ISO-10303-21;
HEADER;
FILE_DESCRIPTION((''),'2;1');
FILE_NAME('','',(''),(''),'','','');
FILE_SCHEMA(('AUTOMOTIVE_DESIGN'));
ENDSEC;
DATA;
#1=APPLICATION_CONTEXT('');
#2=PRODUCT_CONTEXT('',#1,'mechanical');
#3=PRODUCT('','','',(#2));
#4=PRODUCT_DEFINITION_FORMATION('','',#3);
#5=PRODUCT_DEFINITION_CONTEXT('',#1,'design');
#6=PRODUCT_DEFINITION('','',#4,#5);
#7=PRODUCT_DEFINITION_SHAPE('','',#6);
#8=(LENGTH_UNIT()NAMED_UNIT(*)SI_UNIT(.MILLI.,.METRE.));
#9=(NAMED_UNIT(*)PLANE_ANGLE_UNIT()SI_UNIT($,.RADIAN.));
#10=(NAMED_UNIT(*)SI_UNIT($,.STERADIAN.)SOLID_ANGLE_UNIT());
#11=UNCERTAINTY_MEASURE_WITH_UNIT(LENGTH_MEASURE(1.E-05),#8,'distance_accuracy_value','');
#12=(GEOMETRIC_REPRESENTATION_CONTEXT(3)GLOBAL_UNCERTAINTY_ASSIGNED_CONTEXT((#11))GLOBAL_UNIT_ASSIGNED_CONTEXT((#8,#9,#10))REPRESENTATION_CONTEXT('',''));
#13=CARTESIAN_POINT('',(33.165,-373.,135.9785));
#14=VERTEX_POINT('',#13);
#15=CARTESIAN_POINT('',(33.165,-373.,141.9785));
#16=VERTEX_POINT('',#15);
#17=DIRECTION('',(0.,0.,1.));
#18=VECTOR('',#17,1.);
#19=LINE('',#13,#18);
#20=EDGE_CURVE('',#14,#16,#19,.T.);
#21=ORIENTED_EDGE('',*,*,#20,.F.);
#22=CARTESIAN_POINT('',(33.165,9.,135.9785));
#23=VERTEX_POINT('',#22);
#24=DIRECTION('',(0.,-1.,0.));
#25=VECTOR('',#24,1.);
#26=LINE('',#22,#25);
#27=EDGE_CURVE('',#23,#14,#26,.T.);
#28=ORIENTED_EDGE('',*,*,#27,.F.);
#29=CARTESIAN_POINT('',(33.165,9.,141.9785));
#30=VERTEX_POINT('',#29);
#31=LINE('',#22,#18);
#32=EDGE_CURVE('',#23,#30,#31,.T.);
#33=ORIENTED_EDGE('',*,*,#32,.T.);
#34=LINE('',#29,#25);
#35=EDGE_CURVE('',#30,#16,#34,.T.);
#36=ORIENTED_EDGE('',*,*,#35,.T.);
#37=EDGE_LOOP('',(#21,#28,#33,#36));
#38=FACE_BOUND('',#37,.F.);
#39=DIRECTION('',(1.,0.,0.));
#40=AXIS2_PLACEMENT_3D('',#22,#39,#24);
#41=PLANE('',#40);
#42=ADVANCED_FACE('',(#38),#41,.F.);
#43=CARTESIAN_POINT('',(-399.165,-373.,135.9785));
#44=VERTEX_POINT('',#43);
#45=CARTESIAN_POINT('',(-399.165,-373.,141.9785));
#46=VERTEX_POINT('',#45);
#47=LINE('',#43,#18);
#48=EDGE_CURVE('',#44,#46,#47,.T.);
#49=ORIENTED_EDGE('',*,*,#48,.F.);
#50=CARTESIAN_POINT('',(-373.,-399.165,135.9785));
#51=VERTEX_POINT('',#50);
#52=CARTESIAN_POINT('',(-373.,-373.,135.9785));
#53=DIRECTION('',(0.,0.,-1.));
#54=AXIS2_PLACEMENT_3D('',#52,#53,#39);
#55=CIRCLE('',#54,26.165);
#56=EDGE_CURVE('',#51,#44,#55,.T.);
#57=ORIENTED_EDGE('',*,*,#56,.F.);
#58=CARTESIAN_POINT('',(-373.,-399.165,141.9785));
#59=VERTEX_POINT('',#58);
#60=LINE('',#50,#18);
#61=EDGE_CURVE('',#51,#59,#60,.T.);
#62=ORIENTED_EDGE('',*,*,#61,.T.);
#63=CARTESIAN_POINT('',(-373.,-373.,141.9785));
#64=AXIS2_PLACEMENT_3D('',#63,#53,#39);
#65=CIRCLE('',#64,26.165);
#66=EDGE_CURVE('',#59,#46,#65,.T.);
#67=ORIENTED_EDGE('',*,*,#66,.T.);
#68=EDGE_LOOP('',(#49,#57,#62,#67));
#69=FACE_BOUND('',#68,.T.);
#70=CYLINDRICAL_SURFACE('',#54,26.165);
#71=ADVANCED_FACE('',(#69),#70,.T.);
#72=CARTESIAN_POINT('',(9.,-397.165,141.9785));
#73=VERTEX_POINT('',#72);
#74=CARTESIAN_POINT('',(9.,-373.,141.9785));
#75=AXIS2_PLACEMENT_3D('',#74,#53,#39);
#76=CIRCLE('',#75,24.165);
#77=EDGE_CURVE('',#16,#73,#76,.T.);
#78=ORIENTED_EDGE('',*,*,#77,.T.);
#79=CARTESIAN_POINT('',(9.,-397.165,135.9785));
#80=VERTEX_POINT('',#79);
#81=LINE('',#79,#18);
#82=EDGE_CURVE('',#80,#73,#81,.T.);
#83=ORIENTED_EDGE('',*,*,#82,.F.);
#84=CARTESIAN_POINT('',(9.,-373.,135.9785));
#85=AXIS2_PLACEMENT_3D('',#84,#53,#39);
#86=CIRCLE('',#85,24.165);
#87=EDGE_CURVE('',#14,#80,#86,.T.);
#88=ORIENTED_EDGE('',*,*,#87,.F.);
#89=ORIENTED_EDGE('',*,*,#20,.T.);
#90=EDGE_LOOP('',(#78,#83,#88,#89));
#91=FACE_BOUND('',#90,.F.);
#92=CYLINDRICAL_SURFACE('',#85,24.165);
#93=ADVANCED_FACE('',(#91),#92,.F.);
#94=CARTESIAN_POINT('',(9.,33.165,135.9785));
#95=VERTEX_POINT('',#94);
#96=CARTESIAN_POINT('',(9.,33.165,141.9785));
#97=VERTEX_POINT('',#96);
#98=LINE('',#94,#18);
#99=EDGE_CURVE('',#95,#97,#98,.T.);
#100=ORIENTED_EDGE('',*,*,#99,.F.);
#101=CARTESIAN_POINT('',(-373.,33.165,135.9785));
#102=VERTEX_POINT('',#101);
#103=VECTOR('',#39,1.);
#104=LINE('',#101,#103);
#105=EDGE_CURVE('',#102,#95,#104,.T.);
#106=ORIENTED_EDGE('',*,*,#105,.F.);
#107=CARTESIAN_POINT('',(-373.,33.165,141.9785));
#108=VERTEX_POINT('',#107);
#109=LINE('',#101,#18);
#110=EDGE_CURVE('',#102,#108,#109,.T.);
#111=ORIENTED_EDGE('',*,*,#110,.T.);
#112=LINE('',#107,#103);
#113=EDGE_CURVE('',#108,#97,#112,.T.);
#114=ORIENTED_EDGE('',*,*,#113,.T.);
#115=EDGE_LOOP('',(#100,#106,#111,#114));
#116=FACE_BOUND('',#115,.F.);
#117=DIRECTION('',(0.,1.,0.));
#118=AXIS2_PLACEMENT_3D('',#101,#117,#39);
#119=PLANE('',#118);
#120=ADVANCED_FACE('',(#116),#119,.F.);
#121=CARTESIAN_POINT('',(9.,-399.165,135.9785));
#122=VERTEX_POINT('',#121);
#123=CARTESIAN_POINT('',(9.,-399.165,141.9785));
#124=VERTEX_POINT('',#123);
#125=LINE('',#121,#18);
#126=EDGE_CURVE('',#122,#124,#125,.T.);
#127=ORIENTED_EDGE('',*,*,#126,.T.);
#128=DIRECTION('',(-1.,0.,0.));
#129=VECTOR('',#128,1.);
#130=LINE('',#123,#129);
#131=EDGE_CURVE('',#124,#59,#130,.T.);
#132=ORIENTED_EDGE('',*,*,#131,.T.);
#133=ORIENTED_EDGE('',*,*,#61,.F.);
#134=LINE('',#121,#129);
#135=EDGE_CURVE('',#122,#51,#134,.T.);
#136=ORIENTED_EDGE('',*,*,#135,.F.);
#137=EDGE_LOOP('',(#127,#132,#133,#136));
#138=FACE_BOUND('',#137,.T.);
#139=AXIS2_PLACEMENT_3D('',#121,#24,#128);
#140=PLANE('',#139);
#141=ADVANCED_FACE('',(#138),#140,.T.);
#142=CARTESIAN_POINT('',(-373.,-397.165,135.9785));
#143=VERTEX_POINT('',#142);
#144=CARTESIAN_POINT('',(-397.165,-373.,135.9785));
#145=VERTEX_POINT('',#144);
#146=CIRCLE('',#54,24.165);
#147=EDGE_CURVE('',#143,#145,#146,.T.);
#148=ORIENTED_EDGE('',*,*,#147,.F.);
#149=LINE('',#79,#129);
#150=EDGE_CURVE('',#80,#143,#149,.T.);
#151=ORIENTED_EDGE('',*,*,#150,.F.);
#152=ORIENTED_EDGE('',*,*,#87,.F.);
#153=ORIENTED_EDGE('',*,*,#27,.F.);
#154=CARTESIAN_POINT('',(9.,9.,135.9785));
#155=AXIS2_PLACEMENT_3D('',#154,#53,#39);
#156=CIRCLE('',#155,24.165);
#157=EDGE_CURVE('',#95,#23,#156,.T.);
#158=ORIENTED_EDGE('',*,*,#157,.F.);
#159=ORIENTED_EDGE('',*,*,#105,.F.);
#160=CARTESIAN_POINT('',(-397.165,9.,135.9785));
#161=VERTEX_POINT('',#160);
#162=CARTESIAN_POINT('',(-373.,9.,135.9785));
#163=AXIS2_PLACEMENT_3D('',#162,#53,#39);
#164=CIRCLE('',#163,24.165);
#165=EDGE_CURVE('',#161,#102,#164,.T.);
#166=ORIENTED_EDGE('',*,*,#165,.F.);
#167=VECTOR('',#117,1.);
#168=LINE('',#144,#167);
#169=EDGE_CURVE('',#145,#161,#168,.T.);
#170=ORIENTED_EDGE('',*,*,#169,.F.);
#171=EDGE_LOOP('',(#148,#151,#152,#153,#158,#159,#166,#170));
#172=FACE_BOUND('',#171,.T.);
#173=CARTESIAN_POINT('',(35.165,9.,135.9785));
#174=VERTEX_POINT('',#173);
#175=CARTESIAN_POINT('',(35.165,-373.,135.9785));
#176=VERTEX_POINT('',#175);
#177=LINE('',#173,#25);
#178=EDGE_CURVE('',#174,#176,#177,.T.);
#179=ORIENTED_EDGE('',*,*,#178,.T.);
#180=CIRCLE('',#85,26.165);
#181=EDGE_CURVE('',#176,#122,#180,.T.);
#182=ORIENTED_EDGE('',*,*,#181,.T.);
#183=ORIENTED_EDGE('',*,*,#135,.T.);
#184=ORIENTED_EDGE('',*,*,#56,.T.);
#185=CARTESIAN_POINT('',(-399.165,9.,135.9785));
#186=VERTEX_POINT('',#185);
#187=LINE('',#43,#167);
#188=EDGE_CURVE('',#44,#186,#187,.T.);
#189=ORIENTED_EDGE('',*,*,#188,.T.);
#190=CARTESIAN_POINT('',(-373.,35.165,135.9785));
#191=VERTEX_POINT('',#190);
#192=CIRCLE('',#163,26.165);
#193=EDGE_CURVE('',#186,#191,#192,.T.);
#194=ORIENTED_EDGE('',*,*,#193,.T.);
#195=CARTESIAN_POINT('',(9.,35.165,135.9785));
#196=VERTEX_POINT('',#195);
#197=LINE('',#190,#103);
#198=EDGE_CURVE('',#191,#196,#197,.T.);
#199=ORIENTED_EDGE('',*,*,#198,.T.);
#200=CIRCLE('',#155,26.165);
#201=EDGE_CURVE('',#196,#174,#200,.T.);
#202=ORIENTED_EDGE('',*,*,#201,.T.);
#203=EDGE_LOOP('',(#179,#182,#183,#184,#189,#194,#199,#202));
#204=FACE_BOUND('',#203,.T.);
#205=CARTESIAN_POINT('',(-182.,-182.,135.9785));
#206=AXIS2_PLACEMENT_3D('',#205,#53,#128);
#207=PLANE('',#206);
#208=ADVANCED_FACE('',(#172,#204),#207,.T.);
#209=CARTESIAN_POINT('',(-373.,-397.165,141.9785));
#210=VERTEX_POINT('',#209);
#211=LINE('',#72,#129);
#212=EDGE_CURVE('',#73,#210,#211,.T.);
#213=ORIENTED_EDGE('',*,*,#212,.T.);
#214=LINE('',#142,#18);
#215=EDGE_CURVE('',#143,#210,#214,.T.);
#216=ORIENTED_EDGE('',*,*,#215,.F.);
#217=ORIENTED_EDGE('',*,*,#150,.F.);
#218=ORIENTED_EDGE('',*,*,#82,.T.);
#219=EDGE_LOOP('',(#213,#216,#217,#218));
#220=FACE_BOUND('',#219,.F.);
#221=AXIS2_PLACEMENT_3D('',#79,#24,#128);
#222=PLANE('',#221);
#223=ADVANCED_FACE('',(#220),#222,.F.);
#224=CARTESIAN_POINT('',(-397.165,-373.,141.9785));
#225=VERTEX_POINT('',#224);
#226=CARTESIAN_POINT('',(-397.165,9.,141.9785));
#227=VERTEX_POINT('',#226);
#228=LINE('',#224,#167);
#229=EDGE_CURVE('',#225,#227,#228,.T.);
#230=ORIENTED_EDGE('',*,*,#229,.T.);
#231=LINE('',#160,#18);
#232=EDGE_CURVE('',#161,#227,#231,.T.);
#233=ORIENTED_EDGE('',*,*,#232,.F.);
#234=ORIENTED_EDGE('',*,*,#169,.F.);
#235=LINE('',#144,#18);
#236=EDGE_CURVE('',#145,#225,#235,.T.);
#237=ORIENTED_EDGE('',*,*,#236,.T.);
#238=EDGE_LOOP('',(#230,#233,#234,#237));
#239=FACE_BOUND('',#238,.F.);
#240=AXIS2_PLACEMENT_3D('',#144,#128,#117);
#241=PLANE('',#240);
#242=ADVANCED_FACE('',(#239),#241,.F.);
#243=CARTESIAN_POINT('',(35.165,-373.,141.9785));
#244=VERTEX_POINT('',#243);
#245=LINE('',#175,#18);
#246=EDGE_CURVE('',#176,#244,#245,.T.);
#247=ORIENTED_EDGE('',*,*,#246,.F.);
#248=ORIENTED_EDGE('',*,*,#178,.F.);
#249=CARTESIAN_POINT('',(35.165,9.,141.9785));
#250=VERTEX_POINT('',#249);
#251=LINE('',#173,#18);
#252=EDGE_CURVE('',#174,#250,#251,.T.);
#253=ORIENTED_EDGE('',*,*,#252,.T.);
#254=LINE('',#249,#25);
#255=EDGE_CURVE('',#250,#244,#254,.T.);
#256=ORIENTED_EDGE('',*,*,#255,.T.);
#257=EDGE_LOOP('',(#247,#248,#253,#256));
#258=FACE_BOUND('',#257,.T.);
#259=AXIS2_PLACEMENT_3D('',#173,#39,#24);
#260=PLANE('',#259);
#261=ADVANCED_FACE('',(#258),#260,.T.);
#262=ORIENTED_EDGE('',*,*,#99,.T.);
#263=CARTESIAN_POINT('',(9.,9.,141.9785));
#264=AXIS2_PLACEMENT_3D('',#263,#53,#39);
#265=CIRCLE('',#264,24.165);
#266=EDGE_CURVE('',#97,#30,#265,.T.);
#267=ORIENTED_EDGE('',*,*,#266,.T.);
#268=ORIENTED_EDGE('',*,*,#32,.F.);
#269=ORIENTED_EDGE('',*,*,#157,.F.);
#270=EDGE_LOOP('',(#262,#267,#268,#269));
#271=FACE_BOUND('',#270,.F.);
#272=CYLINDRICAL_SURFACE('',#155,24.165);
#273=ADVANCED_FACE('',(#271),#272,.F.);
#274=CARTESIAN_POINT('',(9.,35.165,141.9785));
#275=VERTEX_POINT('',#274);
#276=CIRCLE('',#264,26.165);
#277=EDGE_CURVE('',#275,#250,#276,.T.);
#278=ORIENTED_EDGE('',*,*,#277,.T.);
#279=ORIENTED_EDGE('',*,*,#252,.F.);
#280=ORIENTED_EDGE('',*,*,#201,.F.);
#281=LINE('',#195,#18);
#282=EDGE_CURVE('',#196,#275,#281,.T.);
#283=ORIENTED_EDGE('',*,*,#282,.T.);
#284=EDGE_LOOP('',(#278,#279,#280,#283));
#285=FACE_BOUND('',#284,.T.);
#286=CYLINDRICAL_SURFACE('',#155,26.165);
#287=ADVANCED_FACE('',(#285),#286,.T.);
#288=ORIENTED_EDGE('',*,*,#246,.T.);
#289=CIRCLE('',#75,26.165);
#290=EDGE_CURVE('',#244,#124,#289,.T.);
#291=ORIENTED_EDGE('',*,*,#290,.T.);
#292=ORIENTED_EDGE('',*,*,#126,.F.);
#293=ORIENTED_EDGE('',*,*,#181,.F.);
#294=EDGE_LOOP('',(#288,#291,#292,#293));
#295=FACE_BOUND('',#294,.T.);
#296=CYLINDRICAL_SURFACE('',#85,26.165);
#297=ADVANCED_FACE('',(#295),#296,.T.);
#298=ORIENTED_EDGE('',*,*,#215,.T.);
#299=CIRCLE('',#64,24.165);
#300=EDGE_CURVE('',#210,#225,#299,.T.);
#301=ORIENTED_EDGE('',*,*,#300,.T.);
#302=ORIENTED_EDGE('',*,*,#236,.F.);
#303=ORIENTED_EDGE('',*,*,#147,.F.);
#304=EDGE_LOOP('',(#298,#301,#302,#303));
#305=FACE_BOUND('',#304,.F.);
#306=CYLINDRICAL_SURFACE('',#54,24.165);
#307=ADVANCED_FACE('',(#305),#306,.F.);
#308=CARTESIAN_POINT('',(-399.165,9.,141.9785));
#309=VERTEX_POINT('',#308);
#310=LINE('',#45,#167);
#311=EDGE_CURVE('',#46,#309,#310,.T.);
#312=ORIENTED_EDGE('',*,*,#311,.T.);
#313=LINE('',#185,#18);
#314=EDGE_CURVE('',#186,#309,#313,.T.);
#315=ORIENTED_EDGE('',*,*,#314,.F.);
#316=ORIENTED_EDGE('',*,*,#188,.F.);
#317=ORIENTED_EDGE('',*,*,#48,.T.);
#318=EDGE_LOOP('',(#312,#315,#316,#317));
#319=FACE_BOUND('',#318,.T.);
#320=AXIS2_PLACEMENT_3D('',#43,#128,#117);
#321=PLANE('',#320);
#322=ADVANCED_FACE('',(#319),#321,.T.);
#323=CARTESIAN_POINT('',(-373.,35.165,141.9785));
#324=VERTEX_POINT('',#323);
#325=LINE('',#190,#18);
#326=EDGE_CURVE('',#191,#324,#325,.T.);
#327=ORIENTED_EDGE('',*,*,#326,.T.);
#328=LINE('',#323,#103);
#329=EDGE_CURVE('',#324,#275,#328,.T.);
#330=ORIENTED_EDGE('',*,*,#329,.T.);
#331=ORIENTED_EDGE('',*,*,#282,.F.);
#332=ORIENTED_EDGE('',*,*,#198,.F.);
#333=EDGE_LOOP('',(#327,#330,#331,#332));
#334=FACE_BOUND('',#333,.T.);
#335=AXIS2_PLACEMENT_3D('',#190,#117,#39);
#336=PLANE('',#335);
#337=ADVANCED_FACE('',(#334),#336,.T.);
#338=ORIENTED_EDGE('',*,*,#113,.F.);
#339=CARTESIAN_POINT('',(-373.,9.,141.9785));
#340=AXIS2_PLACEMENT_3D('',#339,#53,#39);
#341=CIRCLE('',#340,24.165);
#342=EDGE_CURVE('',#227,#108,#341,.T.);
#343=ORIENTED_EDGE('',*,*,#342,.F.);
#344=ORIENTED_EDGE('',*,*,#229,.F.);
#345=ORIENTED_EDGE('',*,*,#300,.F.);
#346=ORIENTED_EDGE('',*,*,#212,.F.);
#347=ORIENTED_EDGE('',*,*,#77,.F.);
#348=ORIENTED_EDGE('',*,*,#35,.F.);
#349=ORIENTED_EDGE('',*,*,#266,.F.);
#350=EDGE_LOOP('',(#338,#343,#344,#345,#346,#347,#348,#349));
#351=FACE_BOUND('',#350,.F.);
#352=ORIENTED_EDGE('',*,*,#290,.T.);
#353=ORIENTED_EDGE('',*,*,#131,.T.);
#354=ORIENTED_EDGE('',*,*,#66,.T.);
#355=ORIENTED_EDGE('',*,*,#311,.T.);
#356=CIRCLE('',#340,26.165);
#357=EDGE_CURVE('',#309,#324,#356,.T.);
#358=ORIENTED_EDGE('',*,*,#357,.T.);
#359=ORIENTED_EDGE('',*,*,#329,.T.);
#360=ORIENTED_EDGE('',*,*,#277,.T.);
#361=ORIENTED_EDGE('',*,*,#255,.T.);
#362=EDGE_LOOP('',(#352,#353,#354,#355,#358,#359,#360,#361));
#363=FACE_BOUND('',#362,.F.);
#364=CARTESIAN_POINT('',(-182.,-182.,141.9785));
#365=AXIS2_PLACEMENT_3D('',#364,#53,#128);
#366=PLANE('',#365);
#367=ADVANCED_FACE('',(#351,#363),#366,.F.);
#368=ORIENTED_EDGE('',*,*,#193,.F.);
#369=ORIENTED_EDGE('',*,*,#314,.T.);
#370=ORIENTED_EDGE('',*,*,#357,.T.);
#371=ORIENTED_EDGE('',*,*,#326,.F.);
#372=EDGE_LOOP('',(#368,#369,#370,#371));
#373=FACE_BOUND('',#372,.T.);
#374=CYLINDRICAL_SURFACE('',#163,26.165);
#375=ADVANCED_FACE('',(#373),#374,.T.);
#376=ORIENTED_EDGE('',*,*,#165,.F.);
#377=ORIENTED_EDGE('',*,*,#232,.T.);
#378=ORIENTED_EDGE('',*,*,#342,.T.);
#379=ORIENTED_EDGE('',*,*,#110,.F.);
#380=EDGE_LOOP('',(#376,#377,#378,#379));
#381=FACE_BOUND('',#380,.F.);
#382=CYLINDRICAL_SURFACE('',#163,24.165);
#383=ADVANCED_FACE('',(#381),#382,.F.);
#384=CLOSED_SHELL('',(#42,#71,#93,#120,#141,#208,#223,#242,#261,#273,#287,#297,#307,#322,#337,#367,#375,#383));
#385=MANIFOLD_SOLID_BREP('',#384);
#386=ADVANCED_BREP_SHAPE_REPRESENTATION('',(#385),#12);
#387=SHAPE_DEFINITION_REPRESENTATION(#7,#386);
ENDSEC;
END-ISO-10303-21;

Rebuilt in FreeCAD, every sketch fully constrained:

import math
import FreeCAD as App
import Part
import Sketcher
from FreeCAD import Vector
Q = App.Units.Quantity

doc = App.newDocument("Part")
params = doc.addObject("Spreadsheet::Sheet", "Params")
for row, (alias, value) in enumerate([
    ("sketch1_width", "382 mm"),
    ("pad1_length", "6 mm"),
], start=1):
    params.set(f"A{row}", alias)
    params.set(f"B{row}", "=" + value)
    params.setAlias(f"B{row}", alias)

body = doc.addObject("PartDesign::Body", "Body")

sketch1 = body.newObject("Sketcher::SketchObject", "Sketch")
sketch1.AttachmentSupport = (doc.getObject("XY_Plane"), [""])
sketch1.MapMode = "FlatFace"
sketch1.AttachmentOffset = App.Placement(Vector(0, 0, 135.9785), App.Rotation())
sketch1.addGeometry([
    Part.LineSegment(Vector(35, -373, 0), Vector(35, 9, 0)),
    Part.ArcOfCircle(Part.Circle(Vector(9, 9, 0), Vector(0, 0, 1), 26), math.radians(0), math.radians(90)),
    Part.LineSegment(Vector(9, 35, 0), Vector(-373, 35, 0)),
    Part.ArcOfCircle(Part.Circle(Vector(-373, 9, 0), Vector(0, 0, 1), 26), math.radians(90), math.radians(180)),
    Part.LineSegment(Vector(-399, 9, 0), Vector(-399, -373, 0)),
    Part.ArcOfCircle(Part.Circle(Vector(-373, -373, 0), Vector(0, 0, 1), 26), math.radians(180), math.radians(270)),
    Part.LineSegment(Vector(-373, -399, 0), Vector(9, -399, 0)),
    Part.ArcOfCircle(Part.Circle(Vector(9, -373, 0), Vector(0, 0, 1), 26), math.radians(-90), math.radians(0)),
    Part.ArcOfCircle(Part.Circle(Vector(9, 9, 0), Vector(0, 0, 1), 24), math.radians(0), math.radians(90)),
    Part.LineSegment(Vector(33, 9, 0), Vector(33, -373, 0)),
    Part.ArcOfCircle(Part.Circle(Vector(9, -373, 0), Vector(0, 0, 1), 24), math.radians(-90), math.radians(0)),
    Part.LineSegment(Vector(9, -397, 0), Vector(-373, -397, 0)),
    Part.ArcOfCircle(Part.Circle(Vector(-373, -373, 0), Vector(0, 0, 1), 24), math.radians(180), math.radians(270)),
    Part.LineSegment(Vector(-397, -373, 0), Vector(-397, 9, 0)),
    Part.ArcOfCircle(Part.Circle(Vector(-373, 9, 0), Vector(0, 0, 1), 24), math.radians(90), math.radians(180)),
    Part.LineSegment(Vector(-373, 33, 0), Vector(9, 33, 0)),
], False)
sketch1.addConstraint([
    Sketcher.Constraint("Tangent", 0, 2, 1, 1),
    Sketcher.Constraint("Tangent", 1, 2, 2, 1),
    Sketcher.Constraint("Tangent", 2, 2, 3, 1),
    Sketcher.Constraint("Tangent", 3, 2, 4, 1),
    Sketcher.Constraint("Tangent", 4, 2, 5, 1),
    Sketcher.Constraint("Tangent", 5, 2, 6, 1),
    Sketcher.Constraint("Tangent", 6, 2, 7, 1),
    Sketcher.Constraint("Tangent", 7, 2, 0, 1),
    Sketcher.Constraint("Tangent", 8, 1, 9, 1),
    Sketcher.Constraint("Tangent", 9, 2, 10, 2),
    Sketcher.Constraint("Tangent", 10, 1, 11, 1),
    Sketcher.Constraint("Tangent", 11, 2, 12, 2),
    Sketcher.Constraint("Tangent", 12, 1, 13, 1),
    Sketcher.Constraint("Tangent", 13, 2, 14, 2),
    Sketcher.Constraint("Tangent", 14, 1, 15, 1),
    Sketcher.Constraint("Tangent", 15, 2, 8, 2),
    Sketcher.Constraint("Vertical", 0),
    Sketcher.Constraint("Horizontal", 2),
    Sketcher.Constraint("Vertical", 4),
    Sketcher.Constraint("Horizontal", 6),
    Sketcher.Constraint("Vertical", 9),
    Sketcher.Constraint("Horizontal", 11),
    Sketcher.Constraint("Vertical", 13),
    Sketcher.Constraint("Horizontal", 15),
    Sketcher.Constraint("Coincident", 8, 3, 1, 3),
    Sketcher.Constraint("Coincident", 10, 3, 7, 3),
    Sketcher.Constraint("Coincident", 12, 3, 5, 3),
    Sketcher.Constraint("Equal", 1, 3),
    Sketcher.Constraint("Equal", 3, 5),
    Sketcher.Constraint("Equal", 5, 7),
    Sketcher.Constraint("Equal", 12, 14),
    Sketcher.Constraint("Equal", 15, 0),
    Sketcher.Constraint("DistanceX", 2, 2, 2, 1, Q("382 mm")),
    Sketcher.Constraint("DistanceX", -1, 1, 1, 3, Q("9 mm")),
    Sketcher.Constraint("DistanceY", -1, 1, 1, 3, Q("9 mm")),
    Sketcher.Constraint("Radius", 1, Q("26.165 mm")),
    Sketcher.Constraint("Radius", 8, Q("24.165 mm")),
])
sketch1.setExpression("Constraints[32]", "Params.sketch1_width")
pad1 = body.newObject("PartDesign::Pad", "Pad")
pad1.Profile = sketch1
pad1.setExpression("Length", "Params.pad1_length")

doc.recompute()
